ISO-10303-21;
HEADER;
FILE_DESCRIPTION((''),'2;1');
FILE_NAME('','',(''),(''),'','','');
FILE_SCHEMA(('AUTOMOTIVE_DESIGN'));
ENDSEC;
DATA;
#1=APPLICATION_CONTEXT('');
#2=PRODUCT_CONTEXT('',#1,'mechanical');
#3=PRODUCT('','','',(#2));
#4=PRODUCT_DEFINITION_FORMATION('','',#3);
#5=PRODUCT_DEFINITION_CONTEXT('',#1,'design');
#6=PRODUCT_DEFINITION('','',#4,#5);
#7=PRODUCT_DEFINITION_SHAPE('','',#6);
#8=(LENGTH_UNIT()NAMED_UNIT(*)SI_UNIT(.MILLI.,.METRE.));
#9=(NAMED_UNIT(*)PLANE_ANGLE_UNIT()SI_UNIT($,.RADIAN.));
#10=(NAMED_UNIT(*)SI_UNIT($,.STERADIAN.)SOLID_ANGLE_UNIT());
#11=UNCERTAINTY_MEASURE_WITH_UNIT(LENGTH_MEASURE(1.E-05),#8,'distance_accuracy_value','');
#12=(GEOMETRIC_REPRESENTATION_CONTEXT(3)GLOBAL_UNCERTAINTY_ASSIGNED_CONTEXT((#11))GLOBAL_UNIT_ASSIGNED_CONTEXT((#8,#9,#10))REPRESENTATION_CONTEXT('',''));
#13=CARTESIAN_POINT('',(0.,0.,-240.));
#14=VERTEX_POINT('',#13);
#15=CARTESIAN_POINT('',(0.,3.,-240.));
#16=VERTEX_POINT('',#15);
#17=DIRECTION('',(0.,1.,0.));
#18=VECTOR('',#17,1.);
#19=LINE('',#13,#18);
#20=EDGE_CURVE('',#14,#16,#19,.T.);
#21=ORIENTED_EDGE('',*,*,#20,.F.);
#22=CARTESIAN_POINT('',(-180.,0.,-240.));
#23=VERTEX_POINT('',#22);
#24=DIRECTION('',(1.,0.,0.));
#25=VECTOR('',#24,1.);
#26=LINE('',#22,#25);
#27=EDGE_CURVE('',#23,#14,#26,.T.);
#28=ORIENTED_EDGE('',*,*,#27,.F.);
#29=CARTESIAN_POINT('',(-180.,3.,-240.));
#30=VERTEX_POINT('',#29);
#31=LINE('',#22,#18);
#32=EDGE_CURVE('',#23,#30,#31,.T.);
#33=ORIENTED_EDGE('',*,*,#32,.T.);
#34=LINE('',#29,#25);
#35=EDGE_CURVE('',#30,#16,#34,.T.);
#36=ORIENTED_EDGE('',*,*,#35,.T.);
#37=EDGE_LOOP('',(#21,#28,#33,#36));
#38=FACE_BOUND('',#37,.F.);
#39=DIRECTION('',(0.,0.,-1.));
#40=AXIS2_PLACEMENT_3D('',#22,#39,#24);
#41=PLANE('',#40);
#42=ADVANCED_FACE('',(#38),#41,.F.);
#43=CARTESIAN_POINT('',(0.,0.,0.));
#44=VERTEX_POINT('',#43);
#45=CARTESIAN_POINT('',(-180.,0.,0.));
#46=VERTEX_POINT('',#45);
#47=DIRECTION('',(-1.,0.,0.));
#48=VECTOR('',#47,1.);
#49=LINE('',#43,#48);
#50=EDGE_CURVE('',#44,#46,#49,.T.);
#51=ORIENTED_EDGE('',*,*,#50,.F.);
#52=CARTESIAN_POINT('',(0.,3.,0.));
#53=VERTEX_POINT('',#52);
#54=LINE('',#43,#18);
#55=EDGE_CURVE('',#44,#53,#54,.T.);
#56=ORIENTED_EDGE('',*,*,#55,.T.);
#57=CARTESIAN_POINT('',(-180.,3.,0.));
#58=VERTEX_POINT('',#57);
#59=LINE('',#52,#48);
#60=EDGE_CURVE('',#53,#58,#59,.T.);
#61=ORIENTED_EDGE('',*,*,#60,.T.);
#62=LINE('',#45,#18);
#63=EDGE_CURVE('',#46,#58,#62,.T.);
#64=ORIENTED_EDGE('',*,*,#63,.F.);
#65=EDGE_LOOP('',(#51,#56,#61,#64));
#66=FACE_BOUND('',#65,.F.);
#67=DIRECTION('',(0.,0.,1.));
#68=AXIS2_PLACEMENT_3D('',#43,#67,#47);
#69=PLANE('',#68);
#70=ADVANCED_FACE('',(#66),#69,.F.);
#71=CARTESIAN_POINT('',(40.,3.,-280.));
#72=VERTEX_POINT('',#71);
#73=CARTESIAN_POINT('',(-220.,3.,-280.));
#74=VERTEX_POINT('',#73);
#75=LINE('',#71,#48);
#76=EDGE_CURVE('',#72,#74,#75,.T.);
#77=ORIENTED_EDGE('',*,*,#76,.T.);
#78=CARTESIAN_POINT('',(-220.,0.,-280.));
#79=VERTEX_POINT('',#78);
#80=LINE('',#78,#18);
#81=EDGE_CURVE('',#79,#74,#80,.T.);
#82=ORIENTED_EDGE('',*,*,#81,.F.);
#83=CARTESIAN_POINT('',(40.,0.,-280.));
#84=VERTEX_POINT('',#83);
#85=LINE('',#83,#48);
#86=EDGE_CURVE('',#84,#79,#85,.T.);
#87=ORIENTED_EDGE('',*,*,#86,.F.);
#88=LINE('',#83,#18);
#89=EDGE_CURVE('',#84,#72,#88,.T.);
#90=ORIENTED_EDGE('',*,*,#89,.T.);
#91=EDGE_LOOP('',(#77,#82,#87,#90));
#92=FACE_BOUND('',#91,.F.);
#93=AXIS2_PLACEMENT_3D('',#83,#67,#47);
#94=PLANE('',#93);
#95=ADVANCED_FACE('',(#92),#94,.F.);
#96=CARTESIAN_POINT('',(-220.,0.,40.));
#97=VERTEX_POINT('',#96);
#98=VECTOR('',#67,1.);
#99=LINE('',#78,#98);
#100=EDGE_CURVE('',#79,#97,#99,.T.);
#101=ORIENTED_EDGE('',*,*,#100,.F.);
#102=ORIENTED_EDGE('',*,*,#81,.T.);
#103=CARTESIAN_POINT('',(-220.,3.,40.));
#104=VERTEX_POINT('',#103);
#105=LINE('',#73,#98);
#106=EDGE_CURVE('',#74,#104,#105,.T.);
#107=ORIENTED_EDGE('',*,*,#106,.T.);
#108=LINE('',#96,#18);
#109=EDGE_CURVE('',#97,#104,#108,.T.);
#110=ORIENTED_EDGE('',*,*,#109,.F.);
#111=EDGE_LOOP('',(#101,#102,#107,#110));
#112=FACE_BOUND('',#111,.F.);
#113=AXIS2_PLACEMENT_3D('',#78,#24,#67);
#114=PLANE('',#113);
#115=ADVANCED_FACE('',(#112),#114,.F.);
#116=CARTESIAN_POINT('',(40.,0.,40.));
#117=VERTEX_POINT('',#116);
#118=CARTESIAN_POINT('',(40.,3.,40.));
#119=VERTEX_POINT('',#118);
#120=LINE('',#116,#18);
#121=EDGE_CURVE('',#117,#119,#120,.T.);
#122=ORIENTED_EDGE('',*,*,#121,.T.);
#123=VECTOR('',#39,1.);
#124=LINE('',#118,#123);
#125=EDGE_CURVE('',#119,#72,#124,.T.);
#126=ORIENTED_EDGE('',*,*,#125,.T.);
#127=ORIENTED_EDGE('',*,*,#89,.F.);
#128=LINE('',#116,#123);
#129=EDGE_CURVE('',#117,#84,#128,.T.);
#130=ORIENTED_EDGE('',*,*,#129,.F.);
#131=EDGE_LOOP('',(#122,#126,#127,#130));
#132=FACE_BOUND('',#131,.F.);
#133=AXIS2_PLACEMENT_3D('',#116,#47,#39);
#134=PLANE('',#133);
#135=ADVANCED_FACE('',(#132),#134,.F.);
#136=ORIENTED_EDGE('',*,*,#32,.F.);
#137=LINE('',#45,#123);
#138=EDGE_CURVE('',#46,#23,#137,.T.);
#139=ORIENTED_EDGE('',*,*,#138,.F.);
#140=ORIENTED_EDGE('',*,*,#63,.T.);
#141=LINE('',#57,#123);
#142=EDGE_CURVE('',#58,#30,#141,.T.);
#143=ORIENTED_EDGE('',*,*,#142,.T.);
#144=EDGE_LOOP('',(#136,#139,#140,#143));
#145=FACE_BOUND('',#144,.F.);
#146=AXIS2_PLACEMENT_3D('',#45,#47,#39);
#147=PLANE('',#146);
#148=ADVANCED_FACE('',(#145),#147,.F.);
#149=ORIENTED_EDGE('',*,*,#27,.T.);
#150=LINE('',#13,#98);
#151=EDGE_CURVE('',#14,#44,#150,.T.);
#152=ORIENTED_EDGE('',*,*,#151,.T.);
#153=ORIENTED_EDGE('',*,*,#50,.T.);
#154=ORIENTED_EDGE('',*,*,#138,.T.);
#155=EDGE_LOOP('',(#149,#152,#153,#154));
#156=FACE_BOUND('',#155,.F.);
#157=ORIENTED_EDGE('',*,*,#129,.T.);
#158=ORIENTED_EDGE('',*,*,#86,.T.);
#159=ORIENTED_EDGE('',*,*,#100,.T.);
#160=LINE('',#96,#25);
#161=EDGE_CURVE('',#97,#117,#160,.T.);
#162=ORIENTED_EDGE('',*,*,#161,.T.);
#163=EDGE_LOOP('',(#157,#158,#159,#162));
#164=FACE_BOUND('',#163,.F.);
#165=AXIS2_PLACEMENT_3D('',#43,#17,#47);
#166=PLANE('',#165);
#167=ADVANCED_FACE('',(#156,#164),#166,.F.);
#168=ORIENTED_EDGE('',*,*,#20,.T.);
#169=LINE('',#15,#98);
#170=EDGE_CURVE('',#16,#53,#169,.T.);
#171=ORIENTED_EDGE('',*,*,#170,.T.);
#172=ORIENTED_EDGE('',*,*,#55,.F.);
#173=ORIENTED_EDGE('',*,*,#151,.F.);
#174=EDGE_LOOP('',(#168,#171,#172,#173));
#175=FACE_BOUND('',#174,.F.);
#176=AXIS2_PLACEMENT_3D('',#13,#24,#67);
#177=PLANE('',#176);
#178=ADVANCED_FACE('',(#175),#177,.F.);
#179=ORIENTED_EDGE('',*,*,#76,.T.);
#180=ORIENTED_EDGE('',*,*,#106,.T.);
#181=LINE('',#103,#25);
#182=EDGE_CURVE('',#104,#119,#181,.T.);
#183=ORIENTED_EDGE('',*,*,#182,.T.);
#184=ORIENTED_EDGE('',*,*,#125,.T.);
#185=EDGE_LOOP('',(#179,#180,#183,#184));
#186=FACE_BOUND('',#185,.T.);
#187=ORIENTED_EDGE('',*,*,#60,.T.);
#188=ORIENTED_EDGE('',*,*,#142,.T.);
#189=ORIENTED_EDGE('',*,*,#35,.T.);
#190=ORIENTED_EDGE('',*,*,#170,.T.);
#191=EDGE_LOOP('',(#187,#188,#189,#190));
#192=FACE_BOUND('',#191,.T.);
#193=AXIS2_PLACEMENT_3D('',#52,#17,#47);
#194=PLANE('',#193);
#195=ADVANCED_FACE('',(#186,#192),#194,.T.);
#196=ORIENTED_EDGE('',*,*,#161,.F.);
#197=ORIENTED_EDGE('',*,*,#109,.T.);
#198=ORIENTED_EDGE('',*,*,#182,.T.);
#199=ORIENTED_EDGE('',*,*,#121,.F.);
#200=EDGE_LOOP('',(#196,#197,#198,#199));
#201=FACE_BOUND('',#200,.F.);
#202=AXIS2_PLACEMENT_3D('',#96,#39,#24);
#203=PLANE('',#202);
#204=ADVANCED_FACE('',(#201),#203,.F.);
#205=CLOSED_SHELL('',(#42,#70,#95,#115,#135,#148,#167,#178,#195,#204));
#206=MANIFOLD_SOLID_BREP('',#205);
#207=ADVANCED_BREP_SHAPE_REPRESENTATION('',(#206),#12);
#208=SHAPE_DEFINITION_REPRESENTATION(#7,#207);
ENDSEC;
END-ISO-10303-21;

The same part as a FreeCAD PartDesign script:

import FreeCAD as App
import Part
import Sketcher

doc = App.newDocument("Part")
body = doc.addObject("PartDesign::Body", "Body")

sketch1 = doc.addObject("Sketcher::SketchObject", "Sketch")
body.addObject(sketch1)
sketch1.AttachmentSupport = (doc.XZ_Plane, [""])
sketch1.MapMode = "FlatFace"
sketch1.addGeometry([
    Part.LineSegment(App.Vector(40, -280, 0), App.Vector(-220, -280, 0)),
    Part.LineSegment(App.Vector(-220, -280, 0), App.Vector(-220, 40, 0)),
    Part.LineSegment(App.Vector(-220, 40, 0), App.Vector(40, 40, 0)),
    Part.LineSegment(App.Vector(40, 40, 0), App.Vector(40, -280, 0)),
    Part.LineSegment(App.Vector(0, -240, 0), App.Vector(0, 0, 0)),
    Part.LineSegment(App.Vector(0, 0, 0), App.Vector(-180, 0, 0)),
    Part.LineSegment(App.Vector(-180, 0, 0), App.Vector(-180, -240, 0)),
    Part.LineSegment(App.Vector(-180, -240, 0), App.Vector(0, -240, 0)),
], False)
sketch1.addConstraint([
    Sketcher.Constraint("Coincident", 0, 2, 1, 1),
    Sketcher.Constraint("Coincident", 1, 2, 2, 1),
    Sketcher.Constraint("Coincident", 2, 2, 3, 1),
    Sketcher.Constraint("Coincident", 3, 2, 0, 1),
    Sketcher.Constraint("Coincident", 4, 2, 5, 1),
    Sketcher.Constraint("Coincident", 5, 2, 6, 1),
    Sketcher.Constraint("Coincident", 6, 2, 7, 1),
    Sketcher.Constraint("Coincident", 7, 2, 4, 1),
    Sketcher.Constraint("Horizontal", 0),
    Sketcher.Constraint("Vertical", 1),
    Sketcher.Constraint("Horizontal", 2),
    Sketcher.Constraint("Vertical", 3),
    Sketcher.Constraint("Vertical", 4),
    Sketcher.Constraint("Horizontal", 5),
    Sketcher.Constraint("Vertical", 6),
    Sketcher.Constraint("Horizontal", 7),
    Sketcher.Constraint("Coincident", 4, 2, -1, 1),
    Sketcher.Constraint("DistanceX", 5, 2, 5, 1, 180.0),
    Sketcher.Constraint("DistanceY", 4, 1, 4, 2, 240.0),
    Sketcher.Constraint("DistanceY", -1, 1, 1, 2, 40.0),
    Sketcher.Constraint("DistanceX", -1, 1, 2, 2, 40.0),
    Sketcher.Constraint("DistanceX", 1, 2, 5, 2, 40.0),
    Sketcher.Constraint("DistanceY", 0, 2, 6, 2, 40.0),
])
pad1 = doc.addObject("PartDesign::Pad", "Pad")
body.addObject(pad1)
pad1.Profile = sketch1
pad1.Length = 3
pad1.Reversed = True

doc.recompute()
